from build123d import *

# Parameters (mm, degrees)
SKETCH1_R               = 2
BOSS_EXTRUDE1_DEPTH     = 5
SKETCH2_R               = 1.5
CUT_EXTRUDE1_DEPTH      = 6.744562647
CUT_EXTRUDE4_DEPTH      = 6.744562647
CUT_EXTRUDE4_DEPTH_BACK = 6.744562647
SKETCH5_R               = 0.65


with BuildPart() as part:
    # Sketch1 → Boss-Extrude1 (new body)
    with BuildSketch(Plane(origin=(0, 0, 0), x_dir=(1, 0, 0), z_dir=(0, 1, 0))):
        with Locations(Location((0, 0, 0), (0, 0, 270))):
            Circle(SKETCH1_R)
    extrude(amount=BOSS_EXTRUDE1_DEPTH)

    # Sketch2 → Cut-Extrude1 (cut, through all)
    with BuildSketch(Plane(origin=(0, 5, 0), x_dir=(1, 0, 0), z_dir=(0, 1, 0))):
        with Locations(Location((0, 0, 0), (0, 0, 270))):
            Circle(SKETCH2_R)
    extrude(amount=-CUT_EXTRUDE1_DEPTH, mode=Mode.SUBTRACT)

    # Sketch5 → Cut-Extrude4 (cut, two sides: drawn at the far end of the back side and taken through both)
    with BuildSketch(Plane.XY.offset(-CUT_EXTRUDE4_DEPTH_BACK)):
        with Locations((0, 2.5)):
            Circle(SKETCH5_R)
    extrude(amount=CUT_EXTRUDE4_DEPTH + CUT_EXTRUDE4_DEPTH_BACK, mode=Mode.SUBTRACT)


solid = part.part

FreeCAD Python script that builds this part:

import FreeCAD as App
import Part
import Sketcher

V = App.Vector

doc = App.newDocument("Part")
body = doc.addObject("PartDesign::Body", "Body")

# Sketch on XZ plane
sketch1 = body.newObject("Sketcher::SketchObject", "Sketch")
sketch1.AttachmentSupport = (doc.getObject("XZ_Plane"), [""])
sketch1.MapMode = "FlatFace"
sketch1.addGeometry(Part.Circle(V(0, 0, 0), V(0, 0, 1), 2), False)
sketch1.addConstraint([
    Sketcher.Constraint("Coincident", 0, 3, -1, 1),
    Sketcher.Constraint("Diameter", 0, 4.0),
])
pad1 = body.newObject("PartDesign::Pad", "Pad")
pad1.Profile = sketch1
pad1.Length = 5
pad1.Reversed = True

# Sketch on XZ plane
sketch2 = body.newObject("Sketcher::SketchObject", "Sketch001")
sketch2.AttachmentSupport = (doc.getObject("XZ_Plane"), [""])
sketch2.MapMode = "FlatFace"
sketch2.AttachmentOffset = App.Placement(V(0, 0, -5), App.Rotation())
sketch2.addGeometry(Part.Circle(V(0, 0, 0), V(0, 0, 1), 1.5), False)
sketch2.addConstraint([
    Sketcher.Constraint("Coincident", 0, 3, -1, 1),
    Sketcher.Constraint("Diameter", 0, 3.0),
])
pocket1 = body.newObject("PartDesign::Pocket", "Pocket")
pocket1.Profile = sketch2
pocket1.Type = "ThroughAll"
pocket1.Reversed = True

# Sketch on XY plane
sketch3 = body.newObject("Sketcher::SketchObject", "Sketch002")
sketch3.AttachmentSupport = (doc.getObject("XY_Plane"), [""])
sketch3.MapMode = "FlatFace"
sketch3.addGeometry(Part.Circle(V(0, 2.5, 0), V(0, 0, 1), 0.65), False)
sketch3.addConstraint([
    Sketcher.Constraint("PointOnObject", 0, 3, -2),
    Sketcher.Constraint("Diameter", 0, 1.3),
    Sketcher.Constraint("DistanceY", -1, 1, 0, 3, 2.5),
])
pocket2 = body.newObject("PartDesign::Pocket", "Pocket001")
pocket2.Profile = sketch3
pocket2.Type = "ThroughAll"
pocket2.Midplane = True

doc.recompute()
